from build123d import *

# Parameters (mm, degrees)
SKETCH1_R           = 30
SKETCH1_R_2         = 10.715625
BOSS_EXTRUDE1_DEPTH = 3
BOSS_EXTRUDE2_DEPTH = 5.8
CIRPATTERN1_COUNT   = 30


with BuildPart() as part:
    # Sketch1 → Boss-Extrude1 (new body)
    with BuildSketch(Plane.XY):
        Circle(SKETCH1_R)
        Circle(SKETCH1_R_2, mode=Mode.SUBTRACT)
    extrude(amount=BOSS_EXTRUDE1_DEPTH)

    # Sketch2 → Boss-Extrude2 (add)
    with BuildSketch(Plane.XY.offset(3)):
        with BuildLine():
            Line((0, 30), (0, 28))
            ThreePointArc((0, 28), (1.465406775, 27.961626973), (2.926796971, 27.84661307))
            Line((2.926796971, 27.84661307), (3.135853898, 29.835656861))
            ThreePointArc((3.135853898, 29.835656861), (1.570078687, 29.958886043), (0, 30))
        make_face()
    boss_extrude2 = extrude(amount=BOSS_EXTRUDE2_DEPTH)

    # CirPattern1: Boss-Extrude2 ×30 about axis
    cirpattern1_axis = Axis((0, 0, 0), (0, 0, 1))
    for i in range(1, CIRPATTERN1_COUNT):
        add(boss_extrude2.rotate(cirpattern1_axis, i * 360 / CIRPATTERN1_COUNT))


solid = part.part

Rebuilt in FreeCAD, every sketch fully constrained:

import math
import FreeCAD as App
import Part
import Sketcher

V = App.Vector
Q = App.Units.Quantity

doc = App.newDocument("Part")
body = doc.addObject("PartDesign::Body", "Body")

sketch1 = body.newObject("Sketcher::SketchObject", "Sketch")
sketch1.AttachmentSupport = (doc.getObject("XY_Plane"), [""])
sketch1.MapMode = "FlatFace"
sketch1.addGeometry(Part.Circle(V(0, 0, 0), V(0, 0, 1), 30), False)
sketch1.addGeometry(Part.Circle(V(0, 0, 0), V(0, 0, 1), 11), False)
sketch1.addConstraint(Sketcher.Constraint("Coincident", 0, 3, -1, 1))
sketch1.addConstraint(Sketcher.Constraint("Coincident", 1, 3, -1, 1))
sketch1.addConstraint(Sketcher.Constraint("Diameter", 0, Q("60 mm")))
sketch1.addConstraint(Sketcher.Constraint("Diameter", 1, Q("21.43125 mm")))
pad1 = body.newObject("PartDesign::Pad", "Pad")
pad1.Profile = sketch1
pad1.Length = 3

sketch2 = body.newObject("Sketcher::SketchObject", "Sketch001")
sketch2.AttachmentSupport = (doc.getObject("XY_Plane"), [""])
sketch2.MapMode = "FlatFace"
sketch2.AttachmentOffset = App.Placement(V(0, 0, 3), App.Rotation())
sketch2.addGeometry(Part.LineSegment(V(0, 30, 0), V(0, 28, 0)), False)
sketch2.addGeometry(Part.ArcOfCircle(Part.Circle(V(0, 0, 0), V(0, 0, 1), 28), math.radians(84), math.radians(90)), False)
sketch2.addGeometry(Part.LineSegment(V(2.9, 27.8, 0), V(3.1, 29.8, 0)), False)
sketch2.addGeometry(Part.ArcOfCircle(Part.Circle(V(0, 0, 0), V(0, 0, 1), 30), math.radians(84), math.radians(90)), False)
sketch2.addConstraint(Sketcher.Constraint("Coincident", 0, 2, 1, 2))
sketch2.addConstraint(Sketcher.Constraint("Coincident", 1, 1, 2, 1))
sketch2.addConstraint(Sketcher.Constraint("Coincident", 2, 2, 3, 1))
sketch2.addConstraint(Sketcher.Constraint("Coincident", 3, 2, 0, 1))
sketch2.addConstraint(Sketcher.Constraint("Vertical", 0))
sketch2.addConstraint(Sketcher.Constraint("Coincident", 1, 3, -1, 1))
sketch2.addConstraint(Sketcher.Constraint("Coincident", 3, 3, -1, 1))
sketch2.addConstraint(Sketcher.Constraint("PointOnObject", 0, 2, -2))
sketch2.addConstraint(Sketcher.Constraint("Radius", 1, Q("28 mm")))
sketch2.addConstraint(Sketcher.Constraint("Radius", 3, Q("30 mm")))
sketch2.addConstraint(Sketcher.Constraint("Angle", 2, Q("84 deg")))
sketch2.addConstraint(Sketcher.Constraint("DistanceX", -1, 1, 1, 1, Q("2.926797 mm")))
pad2 = body.newObject("PartDesign::Pad", "Pad001")
pad2.Profile = sketch2
pad2.Length = 5.8
doc.recompute()

polarpattern = body.newObject("PartDesign::PolarPattern", "PolarPattern")
polarpattern.Originals = [pad2]
polarpattern.Axis = (doc.getObject("Z_Axis"), [""])
polarpattern.Angle = 360
polarpattern.Occurrences = 30
body.Tip = polarpattern

doc.recompute()
